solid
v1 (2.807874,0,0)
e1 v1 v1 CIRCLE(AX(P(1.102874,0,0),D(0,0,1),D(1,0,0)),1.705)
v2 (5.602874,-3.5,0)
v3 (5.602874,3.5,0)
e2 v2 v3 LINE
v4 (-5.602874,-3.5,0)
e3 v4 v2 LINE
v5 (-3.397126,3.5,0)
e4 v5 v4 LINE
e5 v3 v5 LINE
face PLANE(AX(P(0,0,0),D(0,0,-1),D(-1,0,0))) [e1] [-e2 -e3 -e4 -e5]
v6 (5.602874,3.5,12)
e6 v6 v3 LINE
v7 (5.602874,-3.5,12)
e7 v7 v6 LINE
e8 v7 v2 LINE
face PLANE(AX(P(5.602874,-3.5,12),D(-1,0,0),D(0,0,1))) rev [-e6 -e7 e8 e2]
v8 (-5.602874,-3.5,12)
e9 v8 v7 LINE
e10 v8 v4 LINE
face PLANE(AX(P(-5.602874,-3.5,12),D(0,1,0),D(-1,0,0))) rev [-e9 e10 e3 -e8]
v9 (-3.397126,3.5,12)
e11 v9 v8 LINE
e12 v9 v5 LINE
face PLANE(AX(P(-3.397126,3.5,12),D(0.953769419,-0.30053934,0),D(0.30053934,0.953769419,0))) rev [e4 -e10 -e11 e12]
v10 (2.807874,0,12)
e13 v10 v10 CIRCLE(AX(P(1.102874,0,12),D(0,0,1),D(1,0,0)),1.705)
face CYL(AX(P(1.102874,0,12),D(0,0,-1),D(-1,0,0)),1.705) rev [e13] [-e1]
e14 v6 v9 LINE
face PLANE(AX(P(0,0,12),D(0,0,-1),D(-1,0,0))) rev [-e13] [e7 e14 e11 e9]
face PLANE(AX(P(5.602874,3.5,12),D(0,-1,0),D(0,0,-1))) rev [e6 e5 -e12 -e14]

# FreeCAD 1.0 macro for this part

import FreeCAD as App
import Part
import Sketcher

V = App.Vector
Q = App.Units.Quantity


def add_polygon(sketch, points):
    """Adds a closed chain of lines whose ends are joined by coincident constraints."""
    first, n = sketch.GeometryCount, len(points)
    for a, b in zip(points, points[1:] + points[:1]):
        sketch.addGeometry(Part.LineSegment(App.Vector(*a, 0), App.Vector(*b, 0)), False)
    for i in range(n):
        sketch.addConstraint(Sketcher.Constraint("Coincident", first + i, 2, first + (i + 1) % n, 1))

doc = App.newDocument("Part")
body = doc.addObject("PartDesign::Body", "Body")

# Sketch on XY plane
sketch1 = body.newObject("Sketcher::SketchObject", "Sketch")
sketch1.AttachmentSupport = (doc.getObject("XY_Plane"), [""])
sketch1.MapMode = "FlatFace"
add_polygon(sketch1, [(-3.4, 3.5), (-5.6, -3.5), (5.6, -3.5), (5.6, 3.5)])  # lines 0-3
sketch1.addGeometry(Part.Circle(V(1.1, 0, 0), V(0, 0, 1), 1.7), False)  # 4
sketch1.addConstraint([
    Sketcher.Constraint("Horizontal", 1),
    Sketcher.Constraint("Vertical", 2),
    Sketcher.Constraint("Horizontal", 3),
    Sketcher.Constraint("Symmetric", 0, 2, 2, 2, -1, 1),
    Sketcher.Constraint("PointOnObject", 4, 3, -1),
    Sketcher.Constraint("Diameter", 4, 3.41),
    Sketcher.Constraint("DistanceX", 3, 2, 3, 1, 9.0),
    Sketcher.Constraint("DistanceY", 2, 1, 2, 2, 7.0),
    Sketcher.Constraint("Angle", 0, Q("-107.49 deg")),
    Sketcher.Constraint("DistanceX", 4, 3, 1, 2, 4.5),
])
pad1 = body.newObject("PartDesign::Pad", "Pad")
pad1.Profile = sketch1
pad1.Length = 12

doc.recompute()
